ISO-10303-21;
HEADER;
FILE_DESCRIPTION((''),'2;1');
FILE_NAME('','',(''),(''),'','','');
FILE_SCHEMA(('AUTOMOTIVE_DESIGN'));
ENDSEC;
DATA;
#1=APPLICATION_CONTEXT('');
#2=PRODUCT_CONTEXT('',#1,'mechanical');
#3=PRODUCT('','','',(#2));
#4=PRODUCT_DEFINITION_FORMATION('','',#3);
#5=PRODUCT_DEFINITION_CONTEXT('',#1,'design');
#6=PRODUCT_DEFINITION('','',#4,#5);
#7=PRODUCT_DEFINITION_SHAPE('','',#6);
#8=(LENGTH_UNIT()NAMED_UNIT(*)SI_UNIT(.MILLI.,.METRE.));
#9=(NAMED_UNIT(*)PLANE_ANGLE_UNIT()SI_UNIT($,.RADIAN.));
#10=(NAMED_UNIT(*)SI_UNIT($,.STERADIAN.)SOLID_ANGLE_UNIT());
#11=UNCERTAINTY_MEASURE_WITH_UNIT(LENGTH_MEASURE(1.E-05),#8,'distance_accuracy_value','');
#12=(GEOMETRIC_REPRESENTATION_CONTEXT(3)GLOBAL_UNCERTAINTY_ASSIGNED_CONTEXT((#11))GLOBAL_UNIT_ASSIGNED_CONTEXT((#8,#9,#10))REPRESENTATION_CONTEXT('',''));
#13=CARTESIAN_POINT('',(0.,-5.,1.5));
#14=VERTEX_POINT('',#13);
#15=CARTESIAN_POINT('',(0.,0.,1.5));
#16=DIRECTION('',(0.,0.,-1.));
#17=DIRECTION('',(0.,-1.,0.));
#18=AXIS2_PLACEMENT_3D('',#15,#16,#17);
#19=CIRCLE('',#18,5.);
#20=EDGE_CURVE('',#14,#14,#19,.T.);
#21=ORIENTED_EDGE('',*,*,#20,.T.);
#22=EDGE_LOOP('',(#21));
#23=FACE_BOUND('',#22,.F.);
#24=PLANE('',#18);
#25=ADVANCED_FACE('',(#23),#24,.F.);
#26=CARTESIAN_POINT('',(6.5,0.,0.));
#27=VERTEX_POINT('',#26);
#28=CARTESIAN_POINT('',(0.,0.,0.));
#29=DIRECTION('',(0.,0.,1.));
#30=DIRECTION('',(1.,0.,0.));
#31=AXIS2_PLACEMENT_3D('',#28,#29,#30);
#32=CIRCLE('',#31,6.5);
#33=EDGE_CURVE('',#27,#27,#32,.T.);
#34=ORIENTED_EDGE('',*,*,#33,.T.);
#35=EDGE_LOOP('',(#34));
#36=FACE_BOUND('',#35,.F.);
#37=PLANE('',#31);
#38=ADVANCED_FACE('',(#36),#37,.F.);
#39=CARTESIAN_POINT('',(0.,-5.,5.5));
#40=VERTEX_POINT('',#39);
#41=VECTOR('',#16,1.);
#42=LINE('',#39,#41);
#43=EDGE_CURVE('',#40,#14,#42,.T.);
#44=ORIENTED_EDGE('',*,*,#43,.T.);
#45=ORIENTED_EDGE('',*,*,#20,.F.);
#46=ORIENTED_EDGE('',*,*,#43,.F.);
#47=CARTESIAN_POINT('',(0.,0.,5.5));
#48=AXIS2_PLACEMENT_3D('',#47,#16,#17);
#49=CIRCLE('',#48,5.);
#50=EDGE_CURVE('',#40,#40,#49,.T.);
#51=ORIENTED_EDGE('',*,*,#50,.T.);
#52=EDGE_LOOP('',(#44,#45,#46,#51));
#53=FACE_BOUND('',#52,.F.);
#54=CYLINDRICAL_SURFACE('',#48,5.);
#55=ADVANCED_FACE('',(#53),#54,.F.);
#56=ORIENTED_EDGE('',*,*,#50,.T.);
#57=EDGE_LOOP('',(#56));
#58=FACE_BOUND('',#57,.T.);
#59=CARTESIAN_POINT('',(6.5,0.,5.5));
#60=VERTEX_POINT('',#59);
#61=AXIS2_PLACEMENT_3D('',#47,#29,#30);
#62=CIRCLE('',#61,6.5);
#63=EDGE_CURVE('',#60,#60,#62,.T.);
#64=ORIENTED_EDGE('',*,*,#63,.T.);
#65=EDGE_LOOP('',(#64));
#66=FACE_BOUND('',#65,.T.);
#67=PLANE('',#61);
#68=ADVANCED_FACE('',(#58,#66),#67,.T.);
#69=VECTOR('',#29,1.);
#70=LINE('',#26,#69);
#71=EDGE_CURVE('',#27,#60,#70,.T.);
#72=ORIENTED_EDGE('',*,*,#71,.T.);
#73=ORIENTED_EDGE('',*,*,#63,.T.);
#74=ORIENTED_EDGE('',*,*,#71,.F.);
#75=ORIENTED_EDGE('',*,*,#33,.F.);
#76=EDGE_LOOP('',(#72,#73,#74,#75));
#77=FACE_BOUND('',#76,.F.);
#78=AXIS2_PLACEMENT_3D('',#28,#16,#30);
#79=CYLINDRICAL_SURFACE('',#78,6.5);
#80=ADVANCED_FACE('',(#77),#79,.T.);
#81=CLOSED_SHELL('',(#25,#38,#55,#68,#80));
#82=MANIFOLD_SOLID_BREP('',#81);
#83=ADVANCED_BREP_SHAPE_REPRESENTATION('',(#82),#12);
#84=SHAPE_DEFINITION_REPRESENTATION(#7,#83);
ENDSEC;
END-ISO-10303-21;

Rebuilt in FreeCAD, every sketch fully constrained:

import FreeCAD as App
import Part
import Sketcher

V = App.Vector
Q = App.Units.Quantity

doc = App.newDocument("Part")
params = doc.addObject("Spreadsheet::Sheet", "Params")
for row, (alias, value) in enumerate([
    ("sketch1_diameter", "13 mm"),
    ("pad1_length", "5.5 mm"),
    ("sketch2_diameter", "10 mm"),
    ("hole_diameter", "10 mm"),
    ("hole_depth", "4 mm"),
], start=1):
    params.set(f"A{row}", alias)
    params.set(f"B{row}", "=" + value)
    params.setAlias(f"B{row}", alias)

body = doc.addObject("PartDesign::Body", "Body")

# Sketch on XY plane
sketch1 = body.newObject("Sketcher::SketchObject", "Sketch")
sketch1.AttachmentSupport = (doc.getObject("XY_Plane"), [""])
sketch1.MapMode = "FlatFace"
sketch1.addGeometry(Part.Circle(V(0, 0, 0), V(0, 0, 1), 6.5), False)
sketch1.addConstraint(Sketcher.Constraint("Coincident", 0, 3, -1, 1))
sketch1.addConstraint(Sketcher.Constraint("Diameter", 0, Q("13 mm")))
sketch1.setExpression("Constraints[1]", "Params.sketch1_diameter")
pad1 = body.newObject("PartDesign::Pad", "Pad")
pad1.Profile = sketch1
pad1.setExpression("Length", "Params.pad1_length")

# Sketch on XY plane
sketch2 = body.newObject("Sketcher::SketchObject", "Sketch001")
sketch2.AttachmentSupport = (doc.getObject("XY_Plane"), [""])
sketch2.MapMode = "FlatFace"
sketch2.AttachmentOffset = App.Placement(V(0, 0, 5.5), App.Rotation())
sketch2.addGeometry(Part.Circle(V(0, 0, 0), V(0, 0, 1), 5), False)
sketch2.addConstraint(Sketcher.Constraint("Coincident", 0, 3, -1, 1))
sketch2.addConstraint(Sketcher.Constraint("Diameter", 0, Q("10 mm")))
sketch2.setExpression("Constraints[1]", "Params.sketch2_diameter")
doc.recompute()
hole = body.newObject("PartDesign::Hole", "Hole")
hole.Profile = sketch2
hole.ThreadType = "None"
hole.setExpression("Diameter", "Params.hole_diameter")
hole.DepthType = "Dimension"
hole.setExpression("Depth", "Params.hole_depth")
hole.DrillPoint = "Flat"

doc.recompute()
